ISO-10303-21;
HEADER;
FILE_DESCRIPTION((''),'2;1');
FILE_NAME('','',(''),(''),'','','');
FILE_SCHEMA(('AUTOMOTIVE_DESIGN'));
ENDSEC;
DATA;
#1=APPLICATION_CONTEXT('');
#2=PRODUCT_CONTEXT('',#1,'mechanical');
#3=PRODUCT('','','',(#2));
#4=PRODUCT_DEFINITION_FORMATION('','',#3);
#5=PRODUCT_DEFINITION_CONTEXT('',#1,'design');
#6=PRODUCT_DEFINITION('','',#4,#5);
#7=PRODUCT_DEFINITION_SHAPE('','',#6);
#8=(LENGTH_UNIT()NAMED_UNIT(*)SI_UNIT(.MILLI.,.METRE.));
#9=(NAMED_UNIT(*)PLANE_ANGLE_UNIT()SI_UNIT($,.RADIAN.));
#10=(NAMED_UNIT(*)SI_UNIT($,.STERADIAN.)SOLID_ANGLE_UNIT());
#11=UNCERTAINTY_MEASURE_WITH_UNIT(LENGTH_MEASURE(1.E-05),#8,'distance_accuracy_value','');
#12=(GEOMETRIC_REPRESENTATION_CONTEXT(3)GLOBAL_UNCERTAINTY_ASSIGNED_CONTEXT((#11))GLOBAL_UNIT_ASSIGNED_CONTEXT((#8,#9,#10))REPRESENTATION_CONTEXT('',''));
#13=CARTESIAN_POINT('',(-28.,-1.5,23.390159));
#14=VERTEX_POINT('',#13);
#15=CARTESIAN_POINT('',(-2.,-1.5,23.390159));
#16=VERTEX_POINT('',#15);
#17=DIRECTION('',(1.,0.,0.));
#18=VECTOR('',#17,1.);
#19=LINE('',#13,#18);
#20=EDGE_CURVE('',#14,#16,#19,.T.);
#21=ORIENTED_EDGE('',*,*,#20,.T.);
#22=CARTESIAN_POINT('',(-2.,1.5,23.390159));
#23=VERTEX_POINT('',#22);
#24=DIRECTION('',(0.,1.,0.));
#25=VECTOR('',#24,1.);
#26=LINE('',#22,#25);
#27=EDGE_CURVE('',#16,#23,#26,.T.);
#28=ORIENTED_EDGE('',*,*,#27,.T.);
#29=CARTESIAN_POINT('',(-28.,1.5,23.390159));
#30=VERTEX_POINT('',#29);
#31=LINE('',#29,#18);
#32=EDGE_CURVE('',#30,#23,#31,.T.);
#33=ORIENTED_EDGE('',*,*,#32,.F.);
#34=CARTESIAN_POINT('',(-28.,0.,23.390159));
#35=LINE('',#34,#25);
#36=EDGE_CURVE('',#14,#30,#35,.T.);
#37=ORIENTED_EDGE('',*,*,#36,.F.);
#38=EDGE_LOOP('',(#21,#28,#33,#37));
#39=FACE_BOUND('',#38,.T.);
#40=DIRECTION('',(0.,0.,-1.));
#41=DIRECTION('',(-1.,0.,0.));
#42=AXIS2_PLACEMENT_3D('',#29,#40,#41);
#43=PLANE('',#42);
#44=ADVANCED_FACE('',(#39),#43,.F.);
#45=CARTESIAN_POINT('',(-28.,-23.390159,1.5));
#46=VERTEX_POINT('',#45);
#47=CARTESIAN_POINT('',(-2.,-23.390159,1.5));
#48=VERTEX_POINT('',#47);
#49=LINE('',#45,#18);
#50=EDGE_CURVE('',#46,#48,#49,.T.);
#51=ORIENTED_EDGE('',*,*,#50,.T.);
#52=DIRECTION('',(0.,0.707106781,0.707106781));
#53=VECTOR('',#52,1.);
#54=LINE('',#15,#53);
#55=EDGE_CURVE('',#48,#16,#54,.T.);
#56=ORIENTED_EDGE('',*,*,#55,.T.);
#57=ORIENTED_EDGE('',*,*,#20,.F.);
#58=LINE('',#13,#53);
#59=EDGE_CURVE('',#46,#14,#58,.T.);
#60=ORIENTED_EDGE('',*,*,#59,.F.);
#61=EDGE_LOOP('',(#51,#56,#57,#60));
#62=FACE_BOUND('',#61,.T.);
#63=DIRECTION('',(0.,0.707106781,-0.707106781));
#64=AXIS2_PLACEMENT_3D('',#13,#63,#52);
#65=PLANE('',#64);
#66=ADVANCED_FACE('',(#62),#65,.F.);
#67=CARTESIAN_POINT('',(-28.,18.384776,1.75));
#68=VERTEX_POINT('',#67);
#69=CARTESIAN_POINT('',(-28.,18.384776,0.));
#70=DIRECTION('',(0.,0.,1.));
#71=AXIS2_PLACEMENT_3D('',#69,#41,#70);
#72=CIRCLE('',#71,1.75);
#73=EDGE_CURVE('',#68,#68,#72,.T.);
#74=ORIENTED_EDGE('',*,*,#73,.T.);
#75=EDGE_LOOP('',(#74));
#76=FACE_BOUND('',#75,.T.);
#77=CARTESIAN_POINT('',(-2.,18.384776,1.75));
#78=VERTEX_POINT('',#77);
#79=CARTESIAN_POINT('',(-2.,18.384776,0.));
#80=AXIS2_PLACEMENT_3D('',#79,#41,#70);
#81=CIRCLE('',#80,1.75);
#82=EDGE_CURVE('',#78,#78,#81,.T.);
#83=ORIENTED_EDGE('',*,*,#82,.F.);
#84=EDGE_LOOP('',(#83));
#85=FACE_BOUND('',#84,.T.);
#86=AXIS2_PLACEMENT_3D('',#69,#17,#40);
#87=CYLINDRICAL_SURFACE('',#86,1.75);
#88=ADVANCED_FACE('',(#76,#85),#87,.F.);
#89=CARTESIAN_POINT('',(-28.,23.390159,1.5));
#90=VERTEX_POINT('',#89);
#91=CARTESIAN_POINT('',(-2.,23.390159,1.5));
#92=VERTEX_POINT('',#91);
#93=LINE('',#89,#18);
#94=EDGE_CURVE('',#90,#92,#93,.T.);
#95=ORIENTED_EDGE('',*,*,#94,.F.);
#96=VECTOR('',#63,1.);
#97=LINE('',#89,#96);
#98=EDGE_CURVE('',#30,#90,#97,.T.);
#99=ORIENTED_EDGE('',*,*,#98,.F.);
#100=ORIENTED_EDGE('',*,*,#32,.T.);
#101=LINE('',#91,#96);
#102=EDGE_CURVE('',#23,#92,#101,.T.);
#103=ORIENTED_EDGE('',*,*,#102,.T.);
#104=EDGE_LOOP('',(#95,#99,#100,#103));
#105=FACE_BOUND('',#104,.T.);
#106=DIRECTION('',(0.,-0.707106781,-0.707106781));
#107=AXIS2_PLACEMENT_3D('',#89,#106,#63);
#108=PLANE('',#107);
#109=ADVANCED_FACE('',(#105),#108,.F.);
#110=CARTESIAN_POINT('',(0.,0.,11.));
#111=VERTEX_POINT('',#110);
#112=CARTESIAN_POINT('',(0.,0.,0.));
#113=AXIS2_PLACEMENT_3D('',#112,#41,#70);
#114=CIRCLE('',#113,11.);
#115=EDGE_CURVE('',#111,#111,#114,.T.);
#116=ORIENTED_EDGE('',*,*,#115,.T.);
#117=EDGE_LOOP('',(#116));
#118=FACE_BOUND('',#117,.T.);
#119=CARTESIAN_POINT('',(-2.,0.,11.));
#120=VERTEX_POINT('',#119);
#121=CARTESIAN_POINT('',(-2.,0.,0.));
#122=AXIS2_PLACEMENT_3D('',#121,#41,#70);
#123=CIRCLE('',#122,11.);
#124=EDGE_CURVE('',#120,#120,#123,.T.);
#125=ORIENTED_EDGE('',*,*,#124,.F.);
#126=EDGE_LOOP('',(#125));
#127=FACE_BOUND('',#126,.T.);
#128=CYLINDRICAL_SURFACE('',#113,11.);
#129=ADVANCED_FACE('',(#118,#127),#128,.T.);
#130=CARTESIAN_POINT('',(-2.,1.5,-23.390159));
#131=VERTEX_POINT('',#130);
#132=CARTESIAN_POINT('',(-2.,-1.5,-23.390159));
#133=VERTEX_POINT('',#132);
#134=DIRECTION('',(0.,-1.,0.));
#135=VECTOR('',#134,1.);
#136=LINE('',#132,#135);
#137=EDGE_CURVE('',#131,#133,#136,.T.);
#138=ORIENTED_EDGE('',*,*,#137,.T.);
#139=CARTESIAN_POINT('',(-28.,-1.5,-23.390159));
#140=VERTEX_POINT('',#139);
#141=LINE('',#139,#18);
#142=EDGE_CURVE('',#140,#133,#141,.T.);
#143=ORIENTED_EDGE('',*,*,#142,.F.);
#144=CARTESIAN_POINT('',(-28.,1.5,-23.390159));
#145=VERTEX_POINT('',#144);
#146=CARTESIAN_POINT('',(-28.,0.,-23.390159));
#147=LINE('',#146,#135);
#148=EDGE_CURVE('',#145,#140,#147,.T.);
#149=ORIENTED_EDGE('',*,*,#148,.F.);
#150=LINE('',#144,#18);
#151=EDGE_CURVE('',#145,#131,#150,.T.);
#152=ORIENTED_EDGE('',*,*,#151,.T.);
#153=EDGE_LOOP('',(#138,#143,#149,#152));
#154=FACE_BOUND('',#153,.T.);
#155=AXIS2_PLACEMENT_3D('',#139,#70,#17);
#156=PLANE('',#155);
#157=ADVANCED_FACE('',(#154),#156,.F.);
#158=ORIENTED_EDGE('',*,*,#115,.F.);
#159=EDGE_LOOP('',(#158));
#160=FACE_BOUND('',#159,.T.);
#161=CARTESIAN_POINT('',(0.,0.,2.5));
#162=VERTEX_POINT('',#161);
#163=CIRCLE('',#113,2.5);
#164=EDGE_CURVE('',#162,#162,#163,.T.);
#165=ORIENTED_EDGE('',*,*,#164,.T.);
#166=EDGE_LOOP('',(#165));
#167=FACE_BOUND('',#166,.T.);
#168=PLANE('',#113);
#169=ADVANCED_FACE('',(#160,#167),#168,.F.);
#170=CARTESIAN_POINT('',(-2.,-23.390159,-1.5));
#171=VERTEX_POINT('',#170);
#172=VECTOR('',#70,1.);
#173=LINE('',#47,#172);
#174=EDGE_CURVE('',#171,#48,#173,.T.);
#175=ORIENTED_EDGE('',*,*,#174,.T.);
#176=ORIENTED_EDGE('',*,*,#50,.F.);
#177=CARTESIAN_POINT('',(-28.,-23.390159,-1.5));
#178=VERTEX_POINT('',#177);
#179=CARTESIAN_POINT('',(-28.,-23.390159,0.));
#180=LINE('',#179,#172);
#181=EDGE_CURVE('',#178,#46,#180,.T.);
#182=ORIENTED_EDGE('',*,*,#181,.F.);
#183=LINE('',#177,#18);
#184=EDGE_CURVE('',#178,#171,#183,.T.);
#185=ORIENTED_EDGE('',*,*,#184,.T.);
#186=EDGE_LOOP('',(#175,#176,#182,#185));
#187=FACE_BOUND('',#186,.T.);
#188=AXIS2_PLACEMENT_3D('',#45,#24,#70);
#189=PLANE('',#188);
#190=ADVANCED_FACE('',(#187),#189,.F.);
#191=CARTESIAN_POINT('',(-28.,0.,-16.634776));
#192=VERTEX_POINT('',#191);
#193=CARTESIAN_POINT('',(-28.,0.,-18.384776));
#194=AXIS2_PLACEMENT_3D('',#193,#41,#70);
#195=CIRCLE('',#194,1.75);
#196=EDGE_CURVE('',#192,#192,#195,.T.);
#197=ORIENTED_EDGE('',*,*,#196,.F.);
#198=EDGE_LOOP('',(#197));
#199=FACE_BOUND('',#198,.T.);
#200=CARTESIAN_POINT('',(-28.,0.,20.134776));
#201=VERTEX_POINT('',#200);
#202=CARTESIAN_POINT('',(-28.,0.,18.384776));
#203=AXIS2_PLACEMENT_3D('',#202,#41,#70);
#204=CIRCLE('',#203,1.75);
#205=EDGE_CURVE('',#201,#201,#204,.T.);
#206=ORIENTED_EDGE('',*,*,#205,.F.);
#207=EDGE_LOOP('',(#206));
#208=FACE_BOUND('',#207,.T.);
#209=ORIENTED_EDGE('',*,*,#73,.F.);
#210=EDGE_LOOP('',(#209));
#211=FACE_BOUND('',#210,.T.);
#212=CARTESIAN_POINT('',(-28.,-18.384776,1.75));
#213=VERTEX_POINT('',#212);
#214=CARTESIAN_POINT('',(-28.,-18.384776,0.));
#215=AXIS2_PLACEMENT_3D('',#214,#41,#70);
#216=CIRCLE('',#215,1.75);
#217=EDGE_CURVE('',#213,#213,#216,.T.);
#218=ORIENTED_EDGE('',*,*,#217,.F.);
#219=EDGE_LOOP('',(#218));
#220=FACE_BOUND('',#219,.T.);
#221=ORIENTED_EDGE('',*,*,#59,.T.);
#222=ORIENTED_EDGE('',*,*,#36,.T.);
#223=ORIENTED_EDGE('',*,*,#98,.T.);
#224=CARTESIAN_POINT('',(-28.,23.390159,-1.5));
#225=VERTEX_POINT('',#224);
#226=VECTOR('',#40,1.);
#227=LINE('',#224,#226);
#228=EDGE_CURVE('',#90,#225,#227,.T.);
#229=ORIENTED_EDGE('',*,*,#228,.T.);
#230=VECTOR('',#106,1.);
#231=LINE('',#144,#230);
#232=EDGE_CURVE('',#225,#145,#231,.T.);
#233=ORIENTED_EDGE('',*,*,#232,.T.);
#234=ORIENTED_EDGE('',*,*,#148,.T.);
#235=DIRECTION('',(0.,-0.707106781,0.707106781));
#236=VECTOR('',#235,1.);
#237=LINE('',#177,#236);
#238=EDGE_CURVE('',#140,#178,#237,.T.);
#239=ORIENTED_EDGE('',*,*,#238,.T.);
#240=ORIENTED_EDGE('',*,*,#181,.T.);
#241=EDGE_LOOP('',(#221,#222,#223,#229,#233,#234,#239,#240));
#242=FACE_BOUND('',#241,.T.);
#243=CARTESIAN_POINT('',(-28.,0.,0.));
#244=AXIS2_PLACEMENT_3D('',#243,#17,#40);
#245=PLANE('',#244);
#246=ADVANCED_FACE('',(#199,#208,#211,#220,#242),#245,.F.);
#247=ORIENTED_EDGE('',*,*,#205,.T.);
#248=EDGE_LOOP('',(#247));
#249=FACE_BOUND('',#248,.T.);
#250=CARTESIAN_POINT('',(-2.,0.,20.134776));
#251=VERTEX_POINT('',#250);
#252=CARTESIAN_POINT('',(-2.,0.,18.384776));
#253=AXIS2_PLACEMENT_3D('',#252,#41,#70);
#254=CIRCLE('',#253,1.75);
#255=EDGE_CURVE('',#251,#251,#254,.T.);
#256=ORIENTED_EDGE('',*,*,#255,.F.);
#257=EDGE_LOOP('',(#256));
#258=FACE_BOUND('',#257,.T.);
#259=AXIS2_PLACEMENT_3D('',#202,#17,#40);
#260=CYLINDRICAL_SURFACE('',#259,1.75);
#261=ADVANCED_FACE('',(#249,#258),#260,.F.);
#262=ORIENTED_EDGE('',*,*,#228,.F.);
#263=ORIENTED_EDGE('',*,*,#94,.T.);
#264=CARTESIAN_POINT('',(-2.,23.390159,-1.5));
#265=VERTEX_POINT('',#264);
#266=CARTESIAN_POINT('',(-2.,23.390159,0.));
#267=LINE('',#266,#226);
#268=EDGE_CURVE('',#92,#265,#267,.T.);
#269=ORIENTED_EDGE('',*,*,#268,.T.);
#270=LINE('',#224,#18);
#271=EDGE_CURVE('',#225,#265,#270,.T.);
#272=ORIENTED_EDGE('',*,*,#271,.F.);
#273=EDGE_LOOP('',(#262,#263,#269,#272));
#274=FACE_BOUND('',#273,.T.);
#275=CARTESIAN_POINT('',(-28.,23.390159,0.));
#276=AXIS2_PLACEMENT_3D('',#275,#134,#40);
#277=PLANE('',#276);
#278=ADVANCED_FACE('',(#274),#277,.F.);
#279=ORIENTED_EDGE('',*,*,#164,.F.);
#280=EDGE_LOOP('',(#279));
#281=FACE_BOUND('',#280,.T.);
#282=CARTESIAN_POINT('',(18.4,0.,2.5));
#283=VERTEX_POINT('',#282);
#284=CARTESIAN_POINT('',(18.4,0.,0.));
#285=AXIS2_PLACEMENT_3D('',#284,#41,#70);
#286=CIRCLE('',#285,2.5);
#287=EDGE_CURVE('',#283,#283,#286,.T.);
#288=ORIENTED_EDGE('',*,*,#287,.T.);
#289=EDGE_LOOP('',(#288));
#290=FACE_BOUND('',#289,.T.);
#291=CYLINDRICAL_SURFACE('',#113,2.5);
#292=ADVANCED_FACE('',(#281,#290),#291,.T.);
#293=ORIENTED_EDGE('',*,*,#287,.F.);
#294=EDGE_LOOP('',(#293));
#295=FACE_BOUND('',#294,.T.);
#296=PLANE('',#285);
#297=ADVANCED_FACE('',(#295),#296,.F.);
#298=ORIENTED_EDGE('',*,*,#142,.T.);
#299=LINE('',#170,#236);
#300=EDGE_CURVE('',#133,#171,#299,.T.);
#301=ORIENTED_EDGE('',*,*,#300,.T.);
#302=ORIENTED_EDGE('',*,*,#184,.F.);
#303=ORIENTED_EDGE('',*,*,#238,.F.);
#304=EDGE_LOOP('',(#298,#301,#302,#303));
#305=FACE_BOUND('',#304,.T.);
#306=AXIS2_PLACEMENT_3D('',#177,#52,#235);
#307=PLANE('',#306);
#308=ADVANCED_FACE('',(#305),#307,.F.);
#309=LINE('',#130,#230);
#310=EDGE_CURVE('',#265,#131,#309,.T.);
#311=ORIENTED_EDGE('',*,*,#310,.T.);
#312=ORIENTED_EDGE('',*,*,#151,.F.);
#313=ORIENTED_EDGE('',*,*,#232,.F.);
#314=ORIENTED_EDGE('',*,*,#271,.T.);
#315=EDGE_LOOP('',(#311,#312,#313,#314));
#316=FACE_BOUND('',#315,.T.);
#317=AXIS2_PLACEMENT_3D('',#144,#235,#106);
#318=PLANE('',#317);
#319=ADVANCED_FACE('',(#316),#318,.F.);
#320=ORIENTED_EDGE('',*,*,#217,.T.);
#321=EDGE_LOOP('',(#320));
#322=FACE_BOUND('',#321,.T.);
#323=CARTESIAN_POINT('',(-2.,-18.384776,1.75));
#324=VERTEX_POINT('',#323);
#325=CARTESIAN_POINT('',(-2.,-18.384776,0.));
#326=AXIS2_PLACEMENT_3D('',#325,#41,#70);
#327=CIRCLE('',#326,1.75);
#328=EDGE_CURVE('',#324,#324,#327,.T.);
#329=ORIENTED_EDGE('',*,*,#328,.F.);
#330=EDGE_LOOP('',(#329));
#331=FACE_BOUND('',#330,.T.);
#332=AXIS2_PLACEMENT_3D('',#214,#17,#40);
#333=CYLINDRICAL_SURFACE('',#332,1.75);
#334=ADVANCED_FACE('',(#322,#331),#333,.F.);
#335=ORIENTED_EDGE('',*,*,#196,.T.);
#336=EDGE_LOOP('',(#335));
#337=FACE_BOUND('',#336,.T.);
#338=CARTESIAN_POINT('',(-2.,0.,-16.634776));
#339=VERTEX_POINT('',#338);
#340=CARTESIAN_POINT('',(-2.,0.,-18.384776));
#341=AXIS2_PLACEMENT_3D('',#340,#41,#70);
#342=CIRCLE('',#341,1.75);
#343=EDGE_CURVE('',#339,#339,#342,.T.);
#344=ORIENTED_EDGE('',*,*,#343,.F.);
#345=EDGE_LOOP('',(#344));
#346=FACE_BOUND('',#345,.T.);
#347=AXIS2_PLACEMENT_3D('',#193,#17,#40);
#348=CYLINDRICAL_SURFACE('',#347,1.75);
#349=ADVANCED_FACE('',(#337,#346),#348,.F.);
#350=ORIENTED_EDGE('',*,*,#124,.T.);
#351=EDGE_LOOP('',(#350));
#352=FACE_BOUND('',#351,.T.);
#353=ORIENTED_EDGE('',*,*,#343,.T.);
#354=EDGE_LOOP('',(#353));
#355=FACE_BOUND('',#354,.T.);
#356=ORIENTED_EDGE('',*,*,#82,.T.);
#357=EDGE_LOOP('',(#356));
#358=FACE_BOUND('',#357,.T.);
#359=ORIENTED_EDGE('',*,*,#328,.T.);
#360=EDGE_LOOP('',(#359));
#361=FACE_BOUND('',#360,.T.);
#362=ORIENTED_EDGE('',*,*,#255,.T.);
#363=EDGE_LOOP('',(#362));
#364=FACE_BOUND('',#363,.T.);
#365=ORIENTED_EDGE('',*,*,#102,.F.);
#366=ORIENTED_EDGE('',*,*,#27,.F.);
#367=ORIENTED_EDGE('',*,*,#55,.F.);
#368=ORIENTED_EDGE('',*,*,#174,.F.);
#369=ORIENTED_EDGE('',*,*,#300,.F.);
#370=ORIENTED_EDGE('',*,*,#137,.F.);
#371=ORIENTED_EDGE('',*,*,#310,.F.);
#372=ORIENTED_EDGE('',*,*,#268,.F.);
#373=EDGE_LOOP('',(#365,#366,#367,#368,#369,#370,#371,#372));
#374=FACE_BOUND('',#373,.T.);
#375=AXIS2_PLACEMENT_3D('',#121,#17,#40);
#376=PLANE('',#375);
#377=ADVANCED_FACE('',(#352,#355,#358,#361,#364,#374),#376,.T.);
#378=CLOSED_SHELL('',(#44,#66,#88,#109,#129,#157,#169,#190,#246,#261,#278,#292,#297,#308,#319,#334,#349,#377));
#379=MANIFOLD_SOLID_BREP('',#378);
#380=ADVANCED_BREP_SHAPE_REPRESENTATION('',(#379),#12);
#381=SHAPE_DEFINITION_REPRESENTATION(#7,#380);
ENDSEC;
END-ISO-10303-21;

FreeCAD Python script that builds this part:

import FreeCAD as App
import Part
import Sketcher
from FreeCAD import Vector


def add_polygon(sketch, points):
    """Adds a closed chain of lines whose ends are joined by coincident constraints."""
    first, n = sketch.GeometryCount, len(points)
    for a, b in zip(points, points[1:] + points[:1]):
        sketch.addGeometry(Part.LineSegment(App.Vector(*a, 0), App.Vector(*b, 0)), False)
    for i in range(n):
        sketch.addConstraint(Sketcher.Constraint("Coincident", first + i, 2, first + (i + 1) % n, 1))

doc = App.newDocument("Part")
body = doc.addObject("PartDesign::Body", "Body")

sketch1 = body.newObject("Sketcher::SketchObject", "Sketch")
sketch1.AttachmentSupport = (doc.getObject("XY_Plane"), [""])
sketch1.MapMode = "FlatFace"
add_polygon(sketch1, [(18.4, 0), (18.4, 2.5), (0, 2.5), (0, 11), (-2, 11), (-2, 0)])
sketch1.addConstraint([
    Sketcher.Constraint("Vertical", 0),
    Sketcher.Constraint("Horizontal", 1),
    Sketcher.Constraint("Vertical", 2),
    Sketcher.Constraint("Horizontal", 3),
    Sketcher.Constraint("Vertical", 4),
    Sketcher.Constraint("Horizontal", 5),
    Sketcher.Constraint("PointOnObject", 1, 2, -2),
    Sketcher.Constraint("PointOnObject", 4, 2, -1),
    Sketcher.Constraint("DistanceX", 3, 2, 3, 1, 2.0),
    Sketcher.Constraint("DistanceY", 4, 2, 4, 1, 11.0),
    Sketcher.Constraint("DistanceX", 1, 2, 1, 1, 18.4),
    Sketcher.Constraint("DistanceY", 0, 1, 0, 2, 2.5),
])
revolution = body.newObject("PartDesign::Revolution", "Revolution")
revolution.Profile = sketch1
revolution.ReferenceAxis = (sketch1, ["H_Axis"])
revolution.Angle = 360

sketch2 = body.newObject("Sketcher::SketchObject", "Sketch001")
sketch2.AttachmentSupport = (doc.getObject("YZ_Plane"), [""])
sketch2.MapMode = "FlatFace"
sketch2.AttachmentOffset = App.Placement(Vector(0, 0, -2), App.Rotation())
add_polygon(sketch2, [(23.4, 1.5), (23.4, -1.5), (1.5, -23.4), (-1.5, -23.4), (-23.4, -1.5), (-23.4, 1.5), (-1.5, 23.4), (1.5, 23.4)])
sketch2.addGeometry(Part.Circle(Vector(-18.4, 0, 0), Vector(0, 0, 1), 1.8), False)
sketch2.addGeometry(Part.Circle(Vector(0, 18.4, 0), Vector(0, 0, 1), 1.8), False)
sketch2.addGeometry(Part.Circle(Vector(0, -18.4, 0), Vector(0, 0, 1), 1.8), False)
sketch2.addGeometry(Part.Circle(Vector(18.4, 0, 0), Vector(0, 0, 1), 1.8), False)
sketch2.addConstraint([
    Sketcher.Constraint("Vertical", 0),
    Sketcher.Constraint("Horizontal", 2),
    Sketcher.Constraint("Vertical", 4),
    Sketcher.Constraint("Horizontal", 6),
    Sketcher.Constraint("Equal", 8, 9),
    Sketcher.Constraint("Equal", 9, 10),
    Sketcher.Constraint("Equal", 10, 11),
    Sketcher.Constraint("Symmetric", 9, 3, 10, 3, -1, 1),
    Sketcher.Constraint("Symmetric", 8, 3, 11, 3, -1, 1),
    Sketcher.Constraint("Symmetric", 0, 2, 4, 2, -1, 1),
    Sketcher.Constraint("Symmetric", 1, 2, 5, 2, -1, 1),
    Sketcher.Constraint("PointOnObject", 8, 3, -1),
    Sketcher.Constraint("PointOnObject", 9, 3, -2),
    Sketcher.Constraint("Perpendicular", 1, 3),
    Sketcher.Constraint("Perpendicular", 5, 7),
    Sketcher.Constraint("Horizontal", 0, 2, 3, 2),
    Sketcher.Constraint("Horizontal", 4, 2, 7, 2),
    Sketcher.Constraint("Vertical", 2, 2, 5, 2),
    Sketcher.Constraint("Equal", 6, 0),
    Sketcher.Constraint("Diameter", 8, 3.5),
    Sketcher.Constraint("DistanceX", 2, 2, 2, 1, 3.0),
    Sketcher.Constraint("Distance", 1, 30.957359),
    Sketcher.Constraint("DistanceX", 8, 3, -1, 1, 18.384776),
    Sketcher.Constraint("DistanceY", -1, 1, 9, 3, 18.384776),
])
pad1 = body.newObject("PartDesign::Pad", "Pad")
pad1.Profile = sketch2
pad1.Length = 26
pad1.Reversed = True

doc.recompute()
